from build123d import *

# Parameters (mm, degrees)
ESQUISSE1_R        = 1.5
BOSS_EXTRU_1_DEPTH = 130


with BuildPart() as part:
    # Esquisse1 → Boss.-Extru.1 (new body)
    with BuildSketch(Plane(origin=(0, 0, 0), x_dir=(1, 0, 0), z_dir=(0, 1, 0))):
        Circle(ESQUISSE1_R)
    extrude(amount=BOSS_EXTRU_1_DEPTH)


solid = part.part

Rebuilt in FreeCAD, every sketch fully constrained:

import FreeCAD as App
import Part
import Sketcher

V = App.Vector

doc = App.newDocument("Part")
body = doc.addObject("PartDesign::Body", "Body")

# Sketch on XZ plane
sketch1 = body.newObject("Sketcher::SketchObject", "Sketch")
sketch1.AttachmentSupport = (doc.getObject("XZ_Plane"), [""])
sketch1.MapMode = "FlatFace"
sketch1.addGeometry(Part.Circle(V(0, 0, 0), V(0, 0, 1), 1.5), False)
sketch1.addConstraint(Sketcher.Constraint("Coincident", 0, 3, -1, 1))
sketch1.addConstraint(Sketcher.Constraint("Diameter", 0, 3.0))
pad1 = body.newObject("PartDesign::Pad", "Pad")
pad1.Profile = sketch1
pad1.Length = 130
pad1.Reversed = True

doc.recompute()
